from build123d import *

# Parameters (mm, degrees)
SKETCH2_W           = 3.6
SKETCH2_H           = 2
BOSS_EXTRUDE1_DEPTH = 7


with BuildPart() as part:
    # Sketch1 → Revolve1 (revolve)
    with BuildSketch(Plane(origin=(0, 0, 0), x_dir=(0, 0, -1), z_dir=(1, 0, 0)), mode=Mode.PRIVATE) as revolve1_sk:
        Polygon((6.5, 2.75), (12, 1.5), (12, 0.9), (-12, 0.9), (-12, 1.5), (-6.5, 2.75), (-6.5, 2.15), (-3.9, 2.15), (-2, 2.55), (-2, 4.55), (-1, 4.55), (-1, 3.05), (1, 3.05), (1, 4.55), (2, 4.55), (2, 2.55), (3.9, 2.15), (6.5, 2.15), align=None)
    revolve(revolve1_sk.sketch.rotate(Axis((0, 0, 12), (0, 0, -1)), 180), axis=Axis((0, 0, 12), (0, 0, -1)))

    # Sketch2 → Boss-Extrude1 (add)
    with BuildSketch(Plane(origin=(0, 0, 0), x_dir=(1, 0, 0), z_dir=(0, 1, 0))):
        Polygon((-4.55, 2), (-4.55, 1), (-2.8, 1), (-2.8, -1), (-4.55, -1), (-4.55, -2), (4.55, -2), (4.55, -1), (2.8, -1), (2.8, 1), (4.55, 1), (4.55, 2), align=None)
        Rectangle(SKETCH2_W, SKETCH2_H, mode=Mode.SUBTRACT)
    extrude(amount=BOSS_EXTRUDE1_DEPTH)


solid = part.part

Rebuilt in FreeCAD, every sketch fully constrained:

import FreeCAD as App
import Part
import Sketcher

V = App.Vector
Q = App.Units.Quantity

doc = App.newDocument("Part")
body = doc.addObject("PartDesign::Body", "Body")

sketch1 = body.newObject("Sketcher::SketchObject", "Sketch")
sketch1.AttachmentSupport = (doc.getObject("YZ_Plane"), [""])
sketch1.MapMode = "FlatFace"
sketch1.addGeometry(Part.LineSegment(V(1.5, -12, 0), V(2.75, -6.5, 0)), False)
sketch1.addGeometry(Part.LineSegment(V(2.75, -6.5, 0), V(2.15, -6.5, 0)), False)
sketch1.addGeometry(Part.LineSegment(V(2.15, -6.5, 0), V(2.15, -3.9, 0)), False)
sketch1.addGeometry(Part.LineSegment(V(2.15, -3.9, 0), V(2.55, -2, 0)), False)
sketch1.addGeometry(Part.LineSegment(V(2.55, -2, 0), V(4.55, -2, 0)), False)
sketch1.addGeometry(Part.LineSegment(V(4.55, -2, 0), V(4.55, -1, 0)), False)
sketch1.addGeometry(Part.LineSegment(V(4.55, -1, 0), V(3.05, -1, 0)), False)
sketch1.addGeometry(Part.LineSegment(V(3.05, -1, 0), V(3.05, 1, 0)), False)
sketch1.addGeometry(Part.LineSegment(V(3.05, 1, 0), V(4.55, 1, 0)), False)
sketch1.addGeometry(Part.LineSegment(V(4.55, 1, 0), V(4.55, 2, 0)), False)
sketch1.addGeometry(Part.LineSegment(V(4.55, 2, 0), V(2.55, 2, 0)), False)
sketch1.addGeometry(Part.LineSegment(V(2.55, 2, 0), V(2.15, 3.9, 0)), False)
sketch1.addGeometry(Part.LineSegment(V(2.15, 3.9, 0), V(2.15, 6.5, 0)), False)
sketch1.addGeometry(Part.LineSegment(V(2.15, 6.5, 0), V(2.75, 6.5, 0)), False)
sketch1.addGeometry(Part.LineSegment(V(2.75, 6.5, 0), V(1.5, 12, 0)), False)
sketch1.addGeometry(Part.LineSegment(V(1.5, 12, 0), V(0.9, 12, 0)), False)
sketch1.addGeometry(Part.LineSegment(V(0.9, 12, 0), V(0.9, -12, 0)), False)
sketch1.addGeometry(Part.LineSegment(V(0.9, -12, 0), V(1.5, -12, 0)), False)
sketch1.addConstraint(Sketcher.Constraint("Coincident", 0, 2, 1, 1))
sketch1.addConstraint(Sketcher.Constraint("Coincident", 1, 2, 2, 1))
sketch1.addConstraint(Sketcher.Constraint("Coincident", 2, 2, 3, 1))
sketch1.addConstraint(Sketcher.Constraint("Coincident", 3, 2, 4, 1))
sketch1.addConstraint(Sketcher.Constraint("Coincident", 4, 2, 5, 1))
sketch1.addConstraint(Sketcher.Constraint("Coincident", 5, 2, 6, 1))
sketch1.addConstraint(Sketcher.Constraint("Coincident", 6, 2, 7, 1))
sketch1.addConstraint(Sketcher.Constraint("Coincident", 7, 2, 8, 1))
sketch1.addConstraint(Sketcher.Constraint("Coincident", 8, 2, 9, 1))
sketch1.addConstraint(Sketcher.Constraint("Coincident", 9, 2, 10, 1))
sketch1.addConstraint(Sketcher.Constraint("Coincident", 10, 2, 11, 1))
sketch1.addConstraint(Sketcher.Constraint("Coincident", 11, 2, 12, 1))
sketch1.addConstraint(Sketcher.Constraint("Coincident", 12, 2, 13, 1))
sketch1.addConstraint(Sketcher.Constraint("Coincident", 13, 2, 14, 1))
sketch1.addConstraint(Sketcher.Constraint("Coincident", 14, 2, 15, 1))
sketch1.addConstraint(Sketcher.Constraint("Coincident", 15, 2, 16, 1))
sketch1.addConstraint(Sketcher.Constraint("Coincident", 16, 2, 17, 1))
sketch1.addConstraint(Sketcher.Constraint("Coincident", 17, 2, 0, 1))
sketch1.addConstraint(Sketcher.Constraint("Horizontal", 1))
sketch1.addConstraint(Sketcher.Constraint("Vertical", 2))
sketch1.addConstraint(Sketcher.Constraint("Horizontal", 4))
sketch1.addConstraint(Sketcher.Constraint("Vertical", 5))
sketch1.addConstraint(Sketcher.Constraint("Horizontal", 6))
sketch1.addConstraint(Sketcher.Constraint("Vertical", 7))
sketch1.addConstraint(Sketcher.Constraint("Horizontal", 8))
sketch1.addConstraint(Sketcher.Constraint("Vertical", 9))
sketch1.addConstraint(Sketcher.Constraint("Horizontal", 10))
sketch1.addConstraint(Sketcher.Constraint("Vertical", 12))
sketch1.addConstraint(Sketcher.Constraint("Horizontal", 13))
sketch1.addConstraint(Sketcher.Constraint("Horizontal", 15))
sketch1.addConstraint(Sketcher.Constraint("Vertical", 16))
sketch1.addConstraint(Sketcher.Constraint("Horizontal", 17))
sketch1.addConstraint(Sketcher.Constraint("Symmetric", 5, 2, 8, 2, -1))
sketch1.addConstraint(Sketcher.Constraint("Symmetric", 3, 2, 10, 2, -1))
sketch1.addConstraint(Sketcher.Constraint("Symmetric", 2, 2, 11, 2, -1))
sketch1.addConstraint(Sketcher.Constraint("Symmetric", 0, 2, 13, 2, -1))
sketch1.addConstraint(Sketcher.Constraint("Symmetric", 14, 2, 17, 2, -1))
sketch1.addConstraint(Sketcher.Constraint("Equal", 13, 15))
sketch1.addConstraint(Sketcher.Constraint("Equal", 10, 7))
sketch1.addConstraint(Sketcher.Constraint("DistanceX", 4, 1, 4, 2, Q("2 mm")))
sketch1.addConstraint(Sketcher.Constraint("DistanceY", 5, 1, 5, 2, Q("1 mm")))
sketch1.addConstraint(Sketcher.Constraint("DistanceY", 16, 2, 16, 1, Q("24 mm")))
sketch1.addConstraint(Sketcher.Constraint("DistanceX", 1, 2, 1, 1, Q("0.6 mm")))
sketch1.addConstraint(Sketcher.Constraint("DistanceX", 6, 2, 6, 1, Q("1.5 mm")))
sketch1.addConstraint(Sketcher.Constraint("DistanceY", 2, 1, 2, 2, Q("2.6 mm")))
sketch1.addConstraint(Sketcher.Constraint("DistanceY", 0, 2, -1, 1, Q("6.5 mm")))
sketch1.addConstraint(Sketcher.Constraint("DistanceX", -1, 1, 14, 2, Q("1.5 mm")))
sketch1.addConstraint(Sketcher.Constraint("DistanceX", 2, 2, 3, 2, Q("0.4 mm")))
sketch1.addConstraint(Sketcher.Constraint("DistanceX", -1, 1, 0, 2, Q("2.75 mm")))
revolution = body.newObject("PartDesign::Revolution", "Revolution")
revolution.Profile = sketch1
revolution.ReferenceAxis = (sketch1, ["V_Axis"])
revolution.Angle = 360

sketch2 = body.newObject("Sketcher::SketchObject", "Sketch001")
sketch2.AttachmentSupport = (doc.getObject("XZ_Plane"), [""])
sketch2.MapMode = "FlatFace"
sketch2.addGeometry(Part.LineSegment(V(-4.55, -2, 0), V(-4.55, -1, 0)), False)
sketch2.addGeometry(Part.LineSegment(V(-4.55, -1, 0), V(-2.8, -1, 0)), False)
sketch2.addGeometry(Part.LineSegment(V(-2.8, -1, 0), V(-2.8, 1, 0)), False)
sketch2.addGeometry(Part.LineSegment(V(-2.8, 1, 0), V(-4.55, 1, 0)), False)
sketch2.addGeometry(Part.LineSegment(V(-4.55, 1, 0), V(-4.55, 2, 0)), False)
sketch2.addGeometry(Part.LineSegment(V(-4.55, 2, 0), V(4.55, 2, 0)), False)
sketch2.addGeometry(Part.LineSegment(V(4.55, 2, 0), V(4.55, 1, 0)), False)
sketch2.addGeometry(Part.LineSegment(V(4.55, 1, 0), V(2.8, 1, 0)), False)
sketch2.addGeometry(Part.LineSegment(V(2.8, 1, 0), V(2.8, -1, 0)), False)
sketch2.addGeometry(Part.LineSegment(V(2.8, -1, 0), V(4.55, -1, 0)), False)
sketch2.addGeometry(Part.LineSegment(V(4.55, -1, 0), V(4.55, -2, 0)), False)
sketch2.addGeometry(Part.LineSegment(V(4.55, -2, 0), V(-4.55, -2, 0)), False)
sketch2.addGeometry(Part.LineSegment(V(1.8, 1, 0), V(-1.8, 1, 0)), False)
sketch2.addGeometry(Part.LineSegment(V(-1.8, 1, 0), V(-1.8, -1, 0)), False)
sketch2.addGeometry(Part.LineSegment(V(-1.8, -1, 0), V(1.8, -1, 0)), False)
sketch2.addGeometry(Part.LineSegment(V(1.8, -1, 0), V(1.8, 1, 0)), False)
sketch2.addConstraint(Sketcher.Constraint("Coincident", 0, 2, 1, 1))
sketch2.addConstraint(Sketcher.Constraint("Coincident", 1, 2, 2, 1))
sketch2.addConstraint(Sketcher.Constraint("Coincident", 2, 2, 3, 1))
sketch2.addConstraint(Sketcher.Constraint("Coincident", 3, 2, 4, 1))
sketch2.addConstraint(Sketcher.Constraint("Coincident", 4, 2, 5, 1))
sketch2.addConstraint(Sketcher.Constraint("Coincident", 5, 2, 6, 1))
sketch2.addConstraint(Sketcher.Constraint("Coincident", 6, 2, 7, 1))
sketch2.addConstraint(Sketcher.Constraint("Coincident", 7, 2, 8, 1))
sketch2.addConstraint(Sketcher.Constraint("Coincident", 8, 2, 9, 1))
sketch2.addConstraint(Sketcher.Constraint("Coincident", 9, 2, 10, 1))
sketch2.addConstraint(Sketcher.Constraint("Coincident", 10, 2, 11, 1))
sketch2.addConstraint(Sketcher.Constraint("Coincident", 11, 2, 0, 1))
sketch2.addConstraint(Sketcher.Constraint("Coincident", 12, 2, 13, 1))
sketch2.addConstraint(Sketcher.Constraint("Coincident", 13, 2, 14, 1))
sketch2.addConstraint(Sketcher.Constraint("Coincident", 14, 2, 15, 1))
sketch2.addConstraint(Sketcher.Constraint("Coincident", 15, 2, 12, 1))
sketch2.addConstraint(Sketcher.Constraint("Vertical", 0))
sketch2.addConstraint(Sketcher.Constraint("Horizontal", 1))
sketch2.addConstraint(Sketcher.Constraint("Vertical", 2))
sketch2.addConstraint(Sketcher.Constraint("Horizontal", 3))
sketch2.addConstraint(Sketcher.Constraint("Vertical", 4))
sketch2.addConstraint(Sketcher.Constraint("Horizontal", 5))
sketch2.addConstraint(Sketcher.Constraint("Vertical", 6))
sketch2.addConstraint(Sketcher.Constraint("Horizontal", 7))
sketch2.addConstraint(Sketcher.Constraint("Vertical", 8))
sketch2.addConstraint(Sketcher.Constraint("Horizontal", 9))
sketch2.addConstraint(Sketcher.Constraint("Vertical", 10))
sketch2.addConstraint(Sketcher.Constraint("Horizontal", 11))
sketch2.addConstraint(Sketcher.Constraint("Horizontal", 12))
sketch2.addConstraint(Sketcher.Constraint("Vertical", 13))
sketch2.addConstraint(Sketcher.Constraint("Horizontal", 14))
sketch2.addConstraint(Sketcher.Constraint("Vertical", 15))
sketch2.addConstraint(Sketcher.Constraint("Symmetric", 0, 2, 6, 2, -1, 1))
sketch2.addConstraint(Sketcher.Constraint("Symmetric", 2, 2, 8, 2, -1, 1))
sketch2.addConstraint(Sketcher.Constraint("Symmetric", 4, 2, 10, 2, -1, 1))
sketch2.addConstraint(Sketcher.Constraint("Symmetric", 12, 2, 14, 2, -1, 1))
sketch2.addConstraint(Sketcher.Constraint("Symmetric", 3, 2, 6, 2, -2))
sketch2.addConstraint(Sketcher.Constraint("Horizontal", 7, 2, 12, 2))
sketch2.addConstraint(Sketcher.Constraint("DistanceY", 0, 1, 0, 2, Q("1 mm")))
sketch2.addConstraint(Sketcher.Constraint("DistanceY", 2, 1, 2, 2, Q("2 mm")))
sketch2.addConstraint(Sketcher.Constraint("DistanceX", 5, 1, 5, 2, Q("9.1 mm")))
sketch2.addConstraint(Sketcher.Constraint("DistanceX", 12, 2, 12, 1, Q("3.6 mm")))
sketch2.addConstraint(Sketcher.Constraint("DistanceX", 2, 2, 12, 2, Q("1 mm")))
pad1 = body.newObject("PartDesign::Pad", "Pad")
pad1.Profile = sketch2
pad1.Length = 7
pad1.Reversed = True

doc.recompute()
